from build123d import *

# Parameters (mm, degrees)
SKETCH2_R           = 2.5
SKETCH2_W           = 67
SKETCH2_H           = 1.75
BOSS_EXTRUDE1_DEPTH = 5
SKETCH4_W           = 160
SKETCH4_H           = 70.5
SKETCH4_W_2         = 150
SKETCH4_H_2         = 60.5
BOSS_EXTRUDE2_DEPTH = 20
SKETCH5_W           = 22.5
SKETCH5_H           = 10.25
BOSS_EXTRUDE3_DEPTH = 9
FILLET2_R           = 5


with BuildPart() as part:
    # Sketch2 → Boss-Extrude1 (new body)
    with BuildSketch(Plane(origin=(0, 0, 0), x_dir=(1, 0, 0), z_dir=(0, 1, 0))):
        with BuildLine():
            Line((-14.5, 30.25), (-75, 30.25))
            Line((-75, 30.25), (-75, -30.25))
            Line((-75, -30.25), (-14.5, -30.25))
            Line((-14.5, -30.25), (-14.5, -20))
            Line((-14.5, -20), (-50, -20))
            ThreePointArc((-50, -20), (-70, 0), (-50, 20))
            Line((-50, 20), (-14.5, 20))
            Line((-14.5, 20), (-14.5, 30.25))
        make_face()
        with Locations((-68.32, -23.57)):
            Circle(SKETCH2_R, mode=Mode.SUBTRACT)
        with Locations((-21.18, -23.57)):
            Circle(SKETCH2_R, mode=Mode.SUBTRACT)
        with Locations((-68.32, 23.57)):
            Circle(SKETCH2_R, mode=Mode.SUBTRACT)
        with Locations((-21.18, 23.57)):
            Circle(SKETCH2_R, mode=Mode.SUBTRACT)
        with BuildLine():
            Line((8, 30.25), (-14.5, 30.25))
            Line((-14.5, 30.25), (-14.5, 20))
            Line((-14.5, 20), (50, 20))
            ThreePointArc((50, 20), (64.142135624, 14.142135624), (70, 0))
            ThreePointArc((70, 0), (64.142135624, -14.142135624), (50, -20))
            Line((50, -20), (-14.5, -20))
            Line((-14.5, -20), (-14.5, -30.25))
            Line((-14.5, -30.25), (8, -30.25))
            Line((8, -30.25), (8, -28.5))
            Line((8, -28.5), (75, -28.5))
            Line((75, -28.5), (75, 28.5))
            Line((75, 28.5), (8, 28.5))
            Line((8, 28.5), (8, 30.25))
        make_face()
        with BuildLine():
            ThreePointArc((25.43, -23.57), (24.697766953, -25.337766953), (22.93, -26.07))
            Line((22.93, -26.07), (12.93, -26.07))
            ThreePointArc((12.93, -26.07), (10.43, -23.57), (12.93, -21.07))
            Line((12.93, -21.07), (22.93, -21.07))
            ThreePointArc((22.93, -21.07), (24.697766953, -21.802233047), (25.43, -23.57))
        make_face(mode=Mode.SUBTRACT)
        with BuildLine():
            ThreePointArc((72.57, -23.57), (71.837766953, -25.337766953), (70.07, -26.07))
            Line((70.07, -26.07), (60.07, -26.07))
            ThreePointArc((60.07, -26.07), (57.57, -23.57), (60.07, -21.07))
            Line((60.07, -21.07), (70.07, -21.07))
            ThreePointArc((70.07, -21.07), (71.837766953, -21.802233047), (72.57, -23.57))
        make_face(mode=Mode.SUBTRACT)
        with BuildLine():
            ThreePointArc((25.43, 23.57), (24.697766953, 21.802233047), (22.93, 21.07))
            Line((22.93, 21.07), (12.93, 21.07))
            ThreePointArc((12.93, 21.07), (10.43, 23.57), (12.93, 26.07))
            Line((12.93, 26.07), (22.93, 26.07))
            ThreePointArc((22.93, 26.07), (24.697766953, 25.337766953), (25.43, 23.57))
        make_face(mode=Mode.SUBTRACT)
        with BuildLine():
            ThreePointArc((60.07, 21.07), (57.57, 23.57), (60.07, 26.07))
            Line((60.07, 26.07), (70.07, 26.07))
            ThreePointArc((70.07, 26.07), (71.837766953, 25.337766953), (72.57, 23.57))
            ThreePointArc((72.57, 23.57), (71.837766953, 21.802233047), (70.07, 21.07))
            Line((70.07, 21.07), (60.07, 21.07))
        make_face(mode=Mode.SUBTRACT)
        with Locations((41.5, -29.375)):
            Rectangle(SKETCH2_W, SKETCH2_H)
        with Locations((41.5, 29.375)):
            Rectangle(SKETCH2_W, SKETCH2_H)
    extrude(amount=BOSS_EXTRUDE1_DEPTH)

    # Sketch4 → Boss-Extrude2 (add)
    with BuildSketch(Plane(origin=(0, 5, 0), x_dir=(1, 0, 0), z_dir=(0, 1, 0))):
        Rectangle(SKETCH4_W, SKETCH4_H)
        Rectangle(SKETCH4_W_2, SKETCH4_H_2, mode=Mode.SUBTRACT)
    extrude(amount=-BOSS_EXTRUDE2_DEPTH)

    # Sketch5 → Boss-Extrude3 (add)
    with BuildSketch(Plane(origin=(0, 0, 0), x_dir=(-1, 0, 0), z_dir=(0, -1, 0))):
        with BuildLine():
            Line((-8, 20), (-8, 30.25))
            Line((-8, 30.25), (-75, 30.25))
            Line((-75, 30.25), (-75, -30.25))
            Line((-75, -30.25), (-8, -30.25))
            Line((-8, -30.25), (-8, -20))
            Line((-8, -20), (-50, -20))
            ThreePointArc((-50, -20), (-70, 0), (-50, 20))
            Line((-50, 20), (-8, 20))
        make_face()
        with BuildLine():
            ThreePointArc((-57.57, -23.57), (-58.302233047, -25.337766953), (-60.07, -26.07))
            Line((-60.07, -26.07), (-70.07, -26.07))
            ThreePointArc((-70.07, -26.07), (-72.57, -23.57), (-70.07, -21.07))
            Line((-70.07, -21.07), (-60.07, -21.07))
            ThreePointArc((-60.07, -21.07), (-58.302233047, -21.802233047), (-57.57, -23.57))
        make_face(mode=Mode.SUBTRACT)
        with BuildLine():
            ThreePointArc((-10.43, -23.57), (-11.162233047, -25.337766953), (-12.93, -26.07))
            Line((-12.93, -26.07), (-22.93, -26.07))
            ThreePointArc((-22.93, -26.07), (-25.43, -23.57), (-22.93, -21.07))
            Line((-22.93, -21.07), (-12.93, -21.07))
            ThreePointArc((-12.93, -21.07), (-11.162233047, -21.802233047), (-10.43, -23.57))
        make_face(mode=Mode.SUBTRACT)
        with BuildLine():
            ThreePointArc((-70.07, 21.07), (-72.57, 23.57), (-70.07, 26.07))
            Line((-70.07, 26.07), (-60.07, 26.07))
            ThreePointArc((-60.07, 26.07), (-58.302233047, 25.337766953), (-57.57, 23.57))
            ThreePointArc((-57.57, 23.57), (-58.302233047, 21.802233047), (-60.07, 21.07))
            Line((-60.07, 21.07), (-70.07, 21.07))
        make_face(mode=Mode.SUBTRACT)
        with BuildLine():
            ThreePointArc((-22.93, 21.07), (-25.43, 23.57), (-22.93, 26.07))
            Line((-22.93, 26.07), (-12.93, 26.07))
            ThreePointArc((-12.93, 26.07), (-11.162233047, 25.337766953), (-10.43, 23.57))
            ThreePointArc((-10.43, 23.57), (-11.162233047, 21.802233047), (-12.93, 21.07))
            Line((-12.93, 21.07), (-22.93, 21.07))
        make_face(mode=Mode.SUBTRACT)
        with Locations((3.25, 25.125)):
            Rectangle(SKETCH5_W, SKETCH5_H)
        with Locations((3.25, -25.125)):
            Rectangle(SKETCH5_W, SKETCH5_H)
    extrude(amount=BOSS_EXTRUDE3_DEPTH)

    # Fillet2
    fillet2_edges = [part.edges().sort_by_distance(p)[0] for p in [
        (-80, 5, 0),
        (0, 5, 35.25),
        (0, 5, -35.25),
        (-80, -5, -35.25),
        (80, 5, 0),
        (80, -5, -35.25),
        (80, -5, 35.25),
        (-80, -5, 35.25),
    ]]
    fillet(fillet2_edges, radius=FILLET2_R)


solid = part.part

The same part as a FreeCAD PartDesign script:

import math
import FreeCAD as App
import Part
import Sketcher

V = App.Vector
Q = App.Units.Quantity


def edges_at(feature, points):
    """Names of the edges that pass closest to the given points."""
    edges = feature.Shape.Edges
    near = lambda p: min(range(len(edges)), key=lambda i: edges[i].distToShape(Part.Vertex(*p))[0])
    return sorted({f"Edge{near(p) + 1}" for p in points})


def add_polygon(sketch, points):
    """Adds a closed chain of lines whose ends are joined by coincident constraints."""
    first, n = sketch.GeometryCount, len(points)
    for a, b in zip(points, points[1:] + points[:1]):
        sketch.addGeometry(Part.LineSegment(App.Vector(*a, 0), App.Vector(*b, 0)), False)
    for i in range(n):
        sketch.addConstraint(Sketcher.Constraint("Coincident", first + i, 2, first + (i + 1) % n, 1))

doc = App.newDocument("Part")
body = doc.addObject("PartDesign::Body", "Body")

sketch1 = body.newObject("Sketcher::SketchObject", "Sketch")
sketch1.AttachmentSupport = (doc.getObject("XZ_Plane"), [""])
sketch1.MapMode = "FlatFace"
add_polygon(sketch1, [(-75, -30.2), (-75, 30.2), (75, 30.2), (75, -30.2)])
sketch1.addGeometry(Part.Circle(V(-68.3, 23.6, 0), V(0, 0, 1), 2.5), False)
sketch1.addGeometry(Part.Circle(V(-21.2, 23.6, 0), V(0, 0, 1), 2.5), False)
sketch1.addGeometry(Part.ArcOfCircle(Part.Circle(V(22.9, 23.6, 0), V(0, 0, 1), 2.5), math.radians(-90), math.radians(0)), False)
sketch1.addGeometry(Part.ArcOfCircle(Part.Circle(V(22.9, 23.6, 0), V(0, 0, 1), 2.5), math.radians(0), math.radians(90)), False)
sketch1.addGeometry(Part.LineSegment(V(22.9, 26.1, 0), V(12.9, 26.1, 0)), False)
sketch1.addGeometry(Part.ArcOfCircle(Part.Circle(V(12.9, 23.6, 0), V(0, 0, 1), 2.5), math.radians(90), math.radians(270)), False)
sketch1.addGeometry(Part.LineSegment(V(12.9, 21.1, 0), V(22.9, 21.1, 0)), False)
sketch1.addGeometry(Part.ArcOfCircle(Part.Circle(V(70.1, 23.6, 0), V(0, 0, 1), 2.5), math.radians(-90), math.radians(0)), False)
sketch1.addGeometry(Part.ArcOfCircle(Part.Circle(V(70.1, 23.6, 0), V(0, 0, 1), 2.5), math.radians(0), math.radians(90)), False)
sketch1.addGeometry(Part.LineSegment(V(70.1, 26.1, 0), V(60.1, 26.1, 0)), False)
sketch1.addGeometry(Part.ArcOfCircle(Part.Circle(V(60.1, 23.6, 0), V(0, 0, 1), 2.5), math.radians(90), math.radians(270)), False)
sketch1.addGeometry(Part.LineSegment(V(60.1, 21.1, 0), V(70.1, 21.1, 0)), False)
sketch1.addGeometry(Part.LineSegment(V(-50, -20, 0), V(50, -20, 0)), False)
sketch1.addGeometry(Part.ArcOfCircle(Part.Circle(V(50, 0, 0), V(0, 0, 1), 20), math.radians(-90), math.radians(0)), False)
sketch1.addGeometry(Part.ArcOfCircle(Part.Circle(V(50, 0, 0), V(0, 0, 1), 20), math.radians(0), math.radians(90)), False)
sketch1.addGeometry(Part.LineSegment(V(50, 20, 0), V(-50, 20, 0)), False)
sketch1.addGeometry(Part.ArcOfCircle(Part.Circle(V(-50, 0, 0), V(0, 0, 1), 20), math.radians(90), math.radians(270)), False)
sketch1.addGeometry(Part.Circle(V(-68.3, -23.6, 0), V(0, 0, 1), 2.5), False)
sketch1.addGeometry(Part.Circle(V(-21.2, -23.6, 0), V(0, 0, 1), 2.5), False)
sketch1.addGeometry(Part.ArcOfCircle(Part.Circle(V(22.9, -23.6, 0), V(0, 0, 1), 2.5), math.radians(-90), math.radians(0)), False)
sketch1.addGeometry(Part.ArcOfCircle(Part.Circle(V(22.9, -23.6, 0), V(0, 0, 1), 2.5), math.radians(0), math.radians(90)), False)
sketch1.addGeometry(Part.LineSegment(V(22.9, -21.1, 0), V(12.9, -21.1, 0)), False)
sketch1.addGeometry(Part.ArcOfCircle(Part.Circle(V(12.9, -23.6, 0), V(0, 0, 1), 2.5), math.radians(90), math.radians(270)), False)
sketch1.addGeometry(Part.LineSegment(V(12.9, -26.1, 0), V(22.9, -26.1, 0)), False)
sketch1.addGeometry(Part.LineSegment(V(70.1, -21.1, 0), V(60.1, -21.1, 0)), False)
sketch1.addGeometry(Part.ArcOfCircle(Part.Circle(V(60.1, -23.6, 0), V(0, 0, 1), 2.5), math.radians(90), math.radians(270)), False)
sketch1.addGeometry(Part.LineSegment(V(60.1, -26.1, 0), V(70.1, -26.1, 0)), False)
sketch1.addGeometry(Part.ArcOfCircle(Part.Circle(V(70.1, -23.6, 0), V(0, 0, 1), 2.5), math.radians(-90), math.radians(0)), False)
sketch1.addGeometry(Part.ArcOfCircle(Part.Circle(V(70.1, -23.6, 0), V(0, 0, 1), 2.5), math.radians(0), math.radians(90)), False)
sketch1.addConstraint([
    Sketcher.Constraint("Tangent", 6, 2, 7, 1),
    Sketcher.Constraint("Tangent", 7, 2, 8, 1),
    Sketcher.Constraint("Tangent", 8, 2, 9, 1),
    Sketcher.Constraint("Tangent", 9, 2, 10, 1),
    Sketcher.Constraint("Tangent", 10, 2, 6, 1),
    Sketcher.Constraint("Tangent", 11, 2, 12, 1),
    Sketcher.Constraint("Tangent", 12, 2, 13, 1),
    Sketcher.Constraint("Tangent", 13, 2, 14, 1),
    Sketcher.Constraint("Tangent", 14, 2, 15, 1),
    Sketcher.Constraint("Tangent", 15, 2, 11, 1),
    Sketcher.Constraint("Tangent", 16, 2, 17, 1),
    Sketcher.Constraint("Tangent", 17, 2, 18, 1),
    Sketcher.Constraint("Tangent", 18, 2, 19, 1),
    Sketcher.Constraint("Tangent", 19, 2, 20, 1),
    Sketcher.Constraint("Tangent", 20, 2, 16, 1),
    Sketcher.Constraint("Tangent", 23, 2, 24, 1),
    Sketcher.Constraint("Tangent", 24, 2, 25, 1),
    Sketcher.Constraint("Tangent", 25, 2, 26, 1),
    Sketcher.Constraint("Tangent", 26, 2, 27, 1),
    Sketcher.Constraint("Tangent", 27, 2, 23, 1),
    Sketcher.Constraint("Tangent", 28, 2, 29, 1),
    Sketcher.Constraint("Tangent", 29, 2, 30, 1),
    Sketcher.Constraint("Tangent", 30, 2, 31, 1),
    Sketcher.Constraint("Tangent", 31, 2, 32, 1),
    Sketcher.Constraint("Tangent", 32, 2, 28, 1),
    Sketcher.Constraint("Vertical", 0),
    Sketcher.Constraint("Horizontal", 1),
    Sketcher.Constraint("Vertical", 2),
    Sketcher.Constraint("Horizontal", 3),
    Sketcher.Constraint("Horizontal", 8),
    Sketcher.Constraint("Horizontal", 10),
    Sketcher.Constraint("Horizontal", 13),
    Sketcher.Constraint("Horizontal", 15),
    Sketcher.Constraint("Horizontal", 16),
    Sketcher.Constraint("Horizontal", 19),
    Sketcher.Constraint("Horizontal", 25),
    Sketcher.Constraint("Horizontal", 27),
    Sketcher.Constraint("Horizontal", 28),
    Sketcher.Constraint("Horizontal", 30),
    Sketcher.Constraint("Equal", 4, 5),
    Sketcher.Constraint("Equal", 5, 6),
    Sketcher.Constraint("Equal", 6, 7),
    Sketcher.Constraint("Equal", 9, 11),
    Sketcher.Constraint("Equal", 11, 12),
    Sketcher.Constraint("Equal", 17, 18),
    Sketcher.Constraint("Equal", 14, 21),
    Sketcher.Constraint("Equal", 21, 22),
    Sketcher.Constraint("Equal", 22, 23),
    Sketcher.Constraint("Equal", 23, 24),
    Sketcher.Constraint("Equal", 26, 29),
    Sketcher.Constraint("Equal", 29, 31),
    Sketcher.Constraint("Symmetric", 17, 3, 20, 3, -1, 1),
    Sketcher.Constraint("Symmetric", 0, 2, 2, 2, -1, 1),
    Sketcher.Constraint("Symmetric", 4, 3, 21, 3, -1),
    Sketcher.Constraint("Symmetric", 5, 3, 22, 3, -1),
    Sketcher.Constraint("Symmetric", 6, 3, 23, 3, -1),
    Sketcher.Constraint("Symmetric", 14, 3, 29, 3, -1),
    Sketcher.Constraint("Symmetric", 11, 2, 31, 2, -1),
    Sketcher.Constraint("PointOnObject", 17, 2, -1),
    Sketcher.Constraint("Horizontal", 4, 3, 5, 3),
    Sketcher.Constraint("Horizontal", 5, 3, 6, 3),
    Sketcher.Constraint("Horizontal", 9, 3, 11, 3),
    Sketcher.Constraint("Horizontal", 14, 3, 6, 2),
    Sketcher.Constraint("Horizontal", 6, 2, 11, 2),
    Sketcher.Constraint("Horizontal", 32, 3, 23, 2),
    Sketcher.Constraint("Vertical", 9, 3, 26, 3),
    Sketcher.Constraint("Equal", 10, 13),
    Sketcher.Constraint("Diameter", 4, Q("5 mm")),
    Sketcher.Constraint("Radius", 17, Q("20 mm")),
    Sketcher.Constraint("DistanceX", 1, 1, 1, 2, Q("150 mm")),
    Sketcher.Constraint("DistanceX", 8, 2, 8, 1, Q("10 mm")),
    Sketcher.Constraint("DistanceX", 16, 1, 16, 2, Q("100 mm")),
    Sketcher.Constraint("DistanceY", 0, 1, 0, 2, Q("60.5 mm")),
    Sketcher.Constraint("DistanceX", 4, 3, -1, 1, Q("68.32 mm")),
    Sketcher.Constraint("DistanceY", -1, 1, 4, 3, Q("23.57 mm")),
    Sketcher.Constraint("DistanceX", 5, 3, -1, 1, Q("21.18 mm")),
    Sketcher.Constraint("DistanceX", -1, 1, 6, 3, Q("22.93 mm")),
    Sketcher.Constraint("DistanceX", -1, 1, 11, 3, Q("70.07 mm")),
])
pad1 = body.newObject("PartDesign::Pad", "Pad")
pad1.Profile = sketch1
pad1.Length = 5
pad1.Reversed = True

sketch2 = body.newObject("Sketcher::SketchObject", "Sketch001")
sketch2.AttachmentSupport = (doc.getObject("XZ_Plane"), [""])
sketch2.MapMode = "FlatFace"
sketch2.AttachmentOffset = App.Placement(V(0, 0, -5), App.Rotation())
add_polygon(sketch2, [(-80, -35), (-80, 35), (80, 35), (80, -35)])
add_polygon(sketch2, [(75, 30), (-75, 30), (-75, -30), (75, -30)])
sketch2.addConstraint([
    Sketcher.Constraint("Vertical", 0),
    Sketcher.Constraint("Horizontal", 1),
    Sketcher.Constraint("Vertical", 2),
    Sketcher.Constraint("Horizontal", 3),
    Sketcher.Constraint("Horizontal", 4),
    Sketcher.Constraint("Vertical", 5),
    Sketcher.Constraint("Horizontal", 6),
    Sketcher.Constraint("Vertical", 7),
    Sketcher.Constraint("Symmetric", 0, 2, 2, 2, -1, 1),
    Sketcher.Constraint("Symmetric", 4, 2, 6, 2, -1, 1),
    Sketcher.Constraint("DistanceX", 1, 1, 1, 2, Q("160 mm")),
    Sketcher.Constraint("DistanceX", 4, 2, 4, 1, Q("150 mm")),
    Sketcher.Constraint("DistanceY", 0, 1, 0, 2, Q("70.5 mm")),
    Sketcher.Constraint("DistanceY", 5, 2, 5, 1, Q("60.5 mm")),
])
pad2 = body.newObject("PartDesign::Pad", "Pad001")
pad2.Profile = sketch2
pad2.Length = 20

sketch3 = body.newObject("Sketcher::SketchObject", "Sketch002")
sketch3.AttachmentSupport = (doc.getObject("XZ_Plane"), [""])
sketch3.MapMode = "FlatFace"
sketch3.addGeometry([
    Part.LineSegment(V(50, -20, 0), V(-14.5, -20, 0)),
    Part.LineSegment(V(-14.5, -20, 0), V(-14.5, -30.2, 0)),
    Part.LineSegment(V(-14.5, -30.2, 0), V(75, -30.2, 0)),
    Part.LineSegment(V(75, -30.2, 0), V(75, 30.2, 0)),
    Part.LineSegment(V(75, 30.2, 0), V(-14.5, 30.2, 0)),
    Part.LineSegment(V(-14.5, 30.2, 0), V(-14.5, 20, 0)),
    Part.LineSegment(V(-14.5, 20, 0), V(50, 20, 0)),
    Part.ArcOfCircle(Part.Circle(V(50, 0, 0), V(0, 0, 1), 20), math.radians(-90), math.radians(90)),
    Part.ArcOfCircle(Part.Circle(V(60.1, 23.6, 0), V(0, 0, 1), 2.5), math.radians(180), math.radians(270)),
    Part.ArcOfCircle(Part.Circle(V(60.1, 23.6, 0), V(0, 0, 1), 2.5), math.radians(90), math.radians(180)),
    Part.LineSegment(V(60.1, 26.1, 0), V(70.1, 26.1, 0)),
    Part.ArcOfCircle(Part.Circle(V(70.1, 23.6, 0), V(0, 0, 1), 2.5), math.radians(-90), math.radians(90)),
    Part.LineSegment(V(70.1, 21.1, 0), V(60.1, 21.1, 0)),
    Part.ArcOfCircle(Part.Circle(V(12.9, 23.6, 0), V(0, 0, 1), 2.5), math.radians(180), math.radians(270)),
    Part.ArcOfCircle(Part.Circle(V(12.9, 23.6, 0), V(0, 0, 1), 2.5), math.radians(90), math.radians(180)),
    Part.LineSegment(V(12.9, 26.1, 0), V(22.9, 26.1, 0)),
    Part.ArcOfCircle(Part.Circle(V(22.9, 23.6, 0), V(0, 0, 1), 2.5), math.radians(-90), math.radians(90)),
    Part.LineSegment(V(22.9, 21.1, 0), V(12.9, 21.1, 0)),
    Part.LineSegment(V(60.1, -21.1, 0), V(70.1, -21.1, 0)),
    Part.ArcOfCircle(Part.Circle(V(70.1, -23.6, 0), V(0, 0, 1), 2.5), math.radians(-90), math.radians(90)),
    Part.LineSegment(V(70.1, -26.1, 0), V(60.1, -26.1, 0)),
    Part.ArcOfCircle(Part.Circle(V(60.1, -23.6, 0), V(0, 0, 1), 2.5), math.radians(180), math.radians(270)),
    Part.ArcOfCircle(Part.Circle(V(60.1, -23.6, 0), V(0, 0, 1), 2.5), math.radians(90), math.radians(180)),
    Part.LineSegment(V(12.9, -21.1, 0), V(22.9, -21.1, 0)),
    Part.ArcOfCircle(Part.Circle(V(22.9, -23.6, 0), V(0, 0, 1), 2.5), math.radians(-90), math.radians(90)),
    Part.LineSegment(V(22.9, -26.1, 0), V(12.9, -26.1, 0)),
    Part.ArcOfCircle(Part.Circle(V(12.9, -23.6, 0), V(0, 0, 1), 2.5), math.radians(180), math.radians(270)),
    Part.ArcOfCircle(Part.Circle(V(12.9, -23.6, 0), V(0, 0, 1), 2.5), math.radians(90), math.radians(180)),
], False)
sketch3.addConstraint([
    Sketcher.Constraint("Coincident", 0, 2, 1, 1),
    Sketcher.Constraint("Coincident", 1, 2, 2, 1),
    Sketcher.Constraint("Coincident", 2, 2, 3, 1),
    Sketcher.Constraint("Coincident", 3, 2, 4, 1),
    Sketcher.Constraint("Coincident", 4, 2, 5, 1),
    Sketcher.Constraint("Coincident", 5, 2, 6, 1),
    Sketcher.Constraint("Tangent", 6, 2, 7, 2),
    Sketcher.Constraint("Tangent", 7, 1, 0, 1),
    Sketcher.Constraint("Tangent", 8, 1, 9, 2),
    Sketcher.Constraint("Tangent", 9, 1, 10, 1),
    Sketcher.Constraint("Tangent", 10, 2, 11, 2),
    Sketcher.Constraint("Tangent", 11, 1, 12, 1),
    Sketcher.Constraint("Tangent", 12, 2, 8, 2),
    Sketcher.Constraint("Tangent", 13, 1, 14, 2),
    Sketcher.Constraint("Tangent", 14, 1, 15, 1),
    Sketcher.Constraint("Tangent", 15, 2, 16, 2),
    Sketcher.Constraint("Tangent", 16, 1, 17, 1),
    Sketcher.Constraint("Tangent", 17, 2, 13, 2),
    Sketcher.Constraint("Tangent", 18, 2, 19, 2),
    Sketcher.Constraint("Tangent", 19, 1, 20, 1),
    Sketcher.Constraint("Tangent", 20, 2, 21, 2),
    Sketcher.Constraint("Tangent", 21, 1, 22, 2),
    Sketcher.Constraint("Tangent", 22, 1, 18, 1),
    Sketcher.Constraint("Tangent", 23, 2, 24, 2),
    Sketcher.Constraint("Tangent", 24, 1, 25, 1),
    Sketcher.Constraint("Tangent", 25, 2, 26, 2),
    Sketcher.Constraint("Tangent", 26, 1, 27, 2),
    Sketcher.Constraint("Tangent", 27, 1, 23, 1),
    Sketcher.Constraint("Horizontal", 0),
    Sketcher.Constraint("Vertical", 1),
    Sketcher.Constraint("Horizontal", 2),
    Sketcher.Constraint("Vertical", 3),
    Sketcher.Constraint("Horizontal", 4),
    Sketcher.Constraint("Vertical", 5),
    Sketcher.Constraint("Horizontal", 6),
    Sketcher.Constraint("Horizontal", 10),
    Sketcher.Constraint("Horizontal", 12),
    Sketcher.Constraint("Horizontal", 15),
    Sketcher.Constraint("Horizontal", 17),
    Sketcher.Constraint("Horizontal", 18),
    Sketcher.Constraint("Horizontal", 20),
    Sketcher.Constraint("Horizontal", 23),
    Sketcher.Constraint("Horizontal", 25),
    Sketcher.Constraint("Equal", 8, 9),
    Sketcher.Constraint("Equal", 11, 13),
    Sketcher.Constraint("Equal", 13, 14),
    Sketcher.Constraint("Equal", 16, 19),
    Sketcher.Constraint("Equal", 19, 21),
    Sketcher.Constraint("Equal", 22, 24),
    Sketcher.Constraint("Equal", 24, 26),
    Sketcher.Constraint("Symmetric", 11, 3, 19, 3, -1),
    Sketcher.Constraint("Symmetric", 16, 3, 24, 3, -1),
    Sketcher.Constraint("Symmetric", 1, 2, 4, 2, -1),
    Sketcher.Constraint("Symmetric", 8, 1, 21, 1, -1),
    Sketcher.Constraint("Symmetric", 13, 1, 26, 1, -1),
    Sketcher.Constraint("PointOnObject", 7, 3, -1),
    Sketcher.Constraint("Horizontal", 11, 3, 13, 3),
    Sketcher.Constraint("Horizontal", 16, 3, 8, 1),
    Sketcher.Constraint("Horizontal", 8, 1, 13, 1),
    Sketcher.Constraint("Equal", 12, 15),
    Sketcher.Constraint("Radius", 7, Q("20 mm")),
    Sketcher.Constraint("Radius", 8, Q("2.5 mm")),
    Sketcher.Constraint("DistanceX", 10, 1, 10, 2, Q("10 mm")),
    Sketcher.Constraint("DistanceX", 0, 2, 0, 1, Q("64.5 mm")),
    Sketcher.Constraint("DistanceX", 2, 1, 2, 2, Q("89.5 mm")),
    Sketcher.Constraint("DistanceY", 3, 1, 3, 2, Q("60.5 mm")),
    Sketcher.Constraint("DistanceX", -1, 1, 7, 3, Q("50 mm")),
    Sketcher.Constraint("DistanceX", -1, 1, 8, 3, Q("60.07 mm")),
    Sketcher.Constraint("DistanceY", -1, 1, 8, 3, Q("23.57 mm")),
    Sketcher.Constraint("DistanceX", -1, 1, 13, 3, Q("12.93 mm")),
])
pad3 = body.newObject("PartDesign::Pad", "Pad002")
pad3.Profile = sketch3
pad3.Length = 9
doc.recompute()

fillet = body.newObject("PartDesign::Fillet", "Fillet")
fillet.Base = (pad3, edges_at(pad3, [
    (-80, 5, 0),
    (0, 5, 35.25),
    (0, 5, -35.25),
    (-80, -5, -35.25),
    (80, 5, 0),
    (80, -5, -35.25),
    (80, -5, 35.25),
    (-80, -5, 35.25),
]))
fillet.Radius = 5

doc.recompute()
